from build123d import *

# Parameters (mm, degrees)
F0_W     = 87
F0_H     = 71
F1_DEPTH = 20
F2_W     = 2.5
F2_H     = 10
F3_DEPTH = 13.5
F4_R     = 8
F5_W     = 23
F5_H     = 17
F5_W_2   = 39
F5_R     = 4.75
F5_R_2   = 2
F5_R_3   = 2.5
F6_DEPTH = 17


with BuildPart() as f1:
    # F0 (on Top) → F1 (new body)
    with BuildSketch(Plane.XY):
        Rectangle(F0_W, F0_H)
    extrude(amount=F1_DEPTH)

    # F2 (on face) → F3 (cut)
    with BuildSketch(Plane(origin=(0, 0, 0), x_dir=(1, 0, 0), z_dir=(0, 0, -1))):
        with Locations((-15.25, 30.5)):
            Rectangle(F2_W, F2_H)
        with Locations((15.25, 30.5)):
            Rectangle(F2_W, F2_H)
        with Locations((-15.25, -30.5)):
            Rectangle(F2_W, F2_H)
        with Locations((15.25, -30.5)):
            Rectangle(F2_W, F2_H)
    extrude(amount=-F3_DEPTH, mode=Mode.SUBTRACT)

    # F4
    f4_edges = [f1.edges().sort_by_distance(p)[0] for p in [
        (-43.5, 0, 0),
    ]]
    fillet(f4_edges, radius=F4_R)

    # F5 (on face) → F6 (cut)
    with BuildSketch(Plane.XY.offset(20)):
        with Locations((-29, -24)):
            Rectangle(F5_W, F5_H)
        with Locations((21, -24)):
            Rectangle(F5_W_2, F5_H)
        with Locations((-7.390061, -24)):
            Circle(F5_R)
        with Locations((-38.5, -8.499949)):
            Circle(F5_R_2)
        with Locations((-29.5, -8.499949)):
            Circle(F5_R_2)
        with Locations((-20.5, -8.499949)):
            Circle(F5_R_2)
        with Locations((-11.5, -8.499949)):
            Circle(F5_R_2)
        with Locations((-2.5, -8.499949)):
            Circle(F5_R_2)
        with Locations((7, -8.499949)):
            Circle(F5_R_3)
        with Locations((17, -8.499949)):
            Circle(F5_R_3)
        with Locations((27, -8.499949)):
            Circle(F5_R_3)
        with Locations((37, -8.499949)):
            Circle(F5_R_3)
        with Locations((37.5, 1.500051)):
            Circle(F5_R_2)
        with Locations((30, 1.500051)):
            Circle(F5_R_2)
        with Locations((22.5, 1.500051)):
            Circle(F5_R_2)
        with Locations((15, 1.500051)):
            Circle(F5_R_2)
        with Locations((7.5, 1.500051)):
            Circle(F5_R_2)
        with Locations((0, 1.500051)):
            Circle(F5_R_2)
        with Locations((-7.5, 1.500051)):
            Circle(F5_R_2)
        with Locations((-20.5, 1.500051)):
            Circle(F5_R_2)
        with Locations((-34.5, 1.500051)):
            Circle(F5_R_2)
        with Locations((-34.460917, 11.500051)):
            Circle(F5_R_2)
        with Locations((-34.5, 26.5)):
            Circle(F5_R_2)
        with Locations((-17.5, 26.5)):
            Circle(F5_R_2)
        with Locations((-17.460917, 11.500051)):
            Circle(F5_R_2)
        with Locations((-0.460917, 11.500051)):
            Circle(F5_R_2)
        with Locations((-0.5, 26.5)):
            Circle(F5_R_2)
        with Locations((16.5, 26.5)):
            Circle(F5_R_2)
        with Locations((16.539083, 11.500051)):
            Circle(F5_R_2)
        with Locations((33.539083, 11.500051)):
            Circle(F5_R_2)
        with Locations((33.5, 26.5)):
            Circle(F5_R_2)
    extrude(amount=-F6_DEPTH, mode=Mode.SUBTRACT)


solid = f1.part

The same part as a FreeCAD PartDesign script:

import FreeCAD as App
import Part
import Sketcher

V = App.Vector
Q = App.Units.Quantity


def edges_at(feature, points):
    """Names of the edges that pass closest to the given points."""
    edges = feature.Shape.Edges
    near = lambda p: min(range(len(edges)), key=lambda i: edges[i].distToShape(Part.Vertex(*p))[0])
    return sorted({f"Edge{near(p) + 1}" for p in points})


def add_polygon(sketch, points):
    """Adds a closed chain of lines whose ends are joined by coincident constraints."""
    first, n = sketch.GeometryCount, len(points)
    for a, b in zip(points, points[1:] + points[:1]):
        sketch.addGeometry(Part.LineSegment(App.Vector(*a, 0), App.Vector(*b, 0)), False)
    for i in range(n):
        sketch.addConstraint(Sketcher.Constraint("Coincident", first + i, 2, first + (i + 1) % n, 1))

doc = App.newDocument("Part")
body = doc.addObject("PartDesign::Body", "Body")

# Sketch on XY plane
sketch1 = body.newObject("Sketcher::SketchObject", "Sketch")
sketch1.AttachmentSupport = (doc.getObject("XY_Plane"), [""])
sketch1.MapMode = "FlatFace"
add_polygon(sketch1, [(-44, 36), (-44, -36), (44, -36), (44, 36)])  # lines 0-3
sketch1.addConstraint([
    Sketcher.Constraint("Vertical", 0),
    Sketcher.Constraint("Horizontal", 1),
    Sketcher.Constraint("Vertical", 2),
    Sketcher.Constraint("Horizontal", 3),
    Sketcher.Constraint("Symmetric", 0, 2, 2, 2, -1, 1),
    Sketcher.Constraint("DistanceX", 1, 1, 1, 2, Q("87 mm")),
    Sketcher.Constraint("DistanceY", 0, 2, 0, 1, Q("71 mm")),
])
pad1 = body.newObject("PartDesign::Pad", "Pad")
pad1.Profile = sketch1
pad1.Length = 20

# Sketch on XY plane
sketch2 = body.newObject("Sketcher::SketchObject", "Sketch001")
sketch2.AttachmentSupport = (doc.getObject("XY_Plane"), [""])
sketch2.MapMode = "FlatFace"
add_polygon(sketch2, [(-16.5, -35.5), (-16.5, -25.5), (-14, -25.5), (-14, -35.5)])  # lines 0-3
add_polygon(sketch2, [(14, -35.5), (14, -25.5), (16.5, -25.5), (16.5, -35.5)])  # lines 4-7
add_polygon(sketch2, [(-16.5, 25.5), (-16.5, 35.5), (-14, 35.5), (-14, 25.5)])  # lines 8-11
add_polygon(sketch2, [(14, 25.5), (14, 35.5), (16.5, 35.5), (16.5, 25.5)])  # lines 12-15
sketch2.addConstraint([
    Sketcher.Constraint("Vertical", 0),
    Sketcher.Constraint("Horizontal", 1),
    Sketcher.Constraint("Vertical", 2),
    Sketcher.Constraint("Horizontal", 3),
    Sketcher.Constraint("Vertical", 4),
    Sketcher.Constraint("Horizontal", 5),
    Sketcher.Constraint("Vertical", 6),
    Sketcher.Constraint("Horizontal", 7),
    Sketcher.Constraint("Vertical", 8),
    Sketcher.Constraint("Horizontal", 9),
    Sketcher.Constraint("Vertical", 10),
    Sketcher.Constraint("Horizontal", 11),
    Sketcher.Constraint("Vertical", 12),
    Sketcher.Constraint("Horizontal", 13),
    Sketcher.Constraint("Vertical", 14),
    Sketcher.Constraint("Horizontal", 15),
    Sketcher.Constraint("Symmetric", 6, 2, 8, 2, -1, 1),
    Sketcher.Constraint("Symmetric", 4, 2, 10, 2, -1, 1),
    Sketcher.Constraint("Symmetric", 2, 2, 12, 2, -1, 1),
    Sketcher.Constraint("Symmetric", 0, 2, 14, 2, -1, 1),
    Sketcher.Constraint("Symmetric", 1, 2, 4, 2, -2),
    Sketcher.Constraint("Symmetric", 3, 2, 6, 2, -2),
    Sketcher.Constraint("DistanceY", 0, 1, 0, 2, Q("10 mm")),
    Sketcher.Constraint("DistanceX", 1, 1, 1, 2, Q("2.5 mm")),
    Sketcher.Constraint("DistanceX", 1, 2, -1, 1, Q("14 mm")),
    Sketcher.Constraint("DistanceY", 0, 2, 8, 2, Q("61 mm")),
])
pocket1 = body.newObject("PartDesign::Pocket", "Pocket")
pocket1.Profile = sketch2
pocket1.Length = 13.5
pocket1.Reversed = True
doc.recompute()

fillet = body.newObject("PartDesign::Fillet", "Fillet")
fillet.Base = (pocket1, edges_at(pocket1, [(-43.5, 0, 0)]))
fillet.Radius = 8

# Sketch on XY plane
sketch3 = body.newObject("Sketcher::SketchObject", "Sketch002")
sketch3.AttachmentSupport = (doc.getObject("XY_Plane"), [""])
sketch3.MapMode = "FlatFace"
sketch3.AttachmentOffset = App.Placement(V(0, 0, 20), App.Rotation())
add_polygon(sketch3, [(-40.5, -15.5), (-40.5, -32.5), (-17.5, -32.5), (-17.5, -15.5)])  # lines 0-3
add_polygon(sketch3, [(1.5, -15.5), (1.5, -32.5), (40.5, -32.5), (40.5, -15.5)])  # lines 4-7
sketch3.addGeometry(Part.Circle(V(-7.4, -24, 0), V(0, 0, 1), 4.8), False)  # 8
sketch3.addGeometry(Part.Circle(V(-38.5, -8.5, 0), V(0, 0, 1), 2), False)  # 9
sketch3.addGeometry(Part.Circle(V(-29.5, -8.5, 0), V(0, 0, 1), 2), False)  # 10
sketch3.addGeometry(Part.Circle(V(-20.5, -8.5, 0), V(0, 0, 1), 2), False)  # 11
sketch3.addGeometry(Part.Circle(V(-11.5, -8.5, 0), V(0, 0, 1), 2), False)  # 12
sketch3.addGeometry(Part.Circle(V(-2.5, -8.5, 0), V(0, 0, 1), 2), False)  # 13
sketch3.addGeometry(Part.Circle(V(7, -8.5, 0), V(0, 0, 1), 2.5), False)  # 14
sketch3.addGeometry(Part.Circle(V(17, -8.5, 0), V(0, 0, 1), 2.5), False)  # 15
sketch3.addGeometry(Part.Circle(V(27, -8.5, 0), V(0, 0, 1), 2.5), False)  # 16
sketch3.addGeometry(Part.Circle(V(37, -8.5, 0), V(0, 0, 1), 2.5), False)  # 17
sketch3.addGeometry(Part.Circle(V(37.5, 1.5, 0), V(0, 0, 1), 2), False)  # 18
sketch3.addGeometry(Part.Circle(V(30, 1.5, 0), V(0, 0, 1), 2), False)  # 19
sketch3.addGeometry(Part.Circle(V(22.5, 1.5, 0), V(0, 0, 1), 2), False)  # 20
sketch3.addGeometry(Part.Circle(V(15, 1.5, 0), V(0, 0, 1), 2), False)  # 21
sketch3.addGeometry(Part.Circle(V(7.5, 1.5, 0), V(0, 0, 1), 2), False)  # 22
sketch3.addGeometry(Part.Circle(V(0, 1.5, 0), V(0, 0, 1), 2), False)  # 23
sketch3.addGeometry(Part.Circle(V(-7.5, 1.5, 0), V(0, 0, 1), 2), False)  # 24
sketch3.addGeometry(Part.Circle(V(-20.5, 1.5, 0), V(0, 0, 1), 2), False)  # 25
sketch3.addGeometry(Part.Circle(V(-34.5, 1.5, 0), V(0, 0, 1), 2), False)  # 26
sketch3.addGeometry(Part.Circle(V(-34.5, 11.5, 0), V(0, 0, 1), 2), False)  # 27
sketch3.addGeometry(Part.Circle(V(-34.5, 26.5, 0), V(0, 0, 1), 2), False)  # 28
sketch3.addGeometry(Part.Circle(V(-17.5, 26.5, 0), V(0, 0, 1), 2), False)  # 29
sketch3.addGeometry(Part.Circle(V(-17.5, 11.5, 0), V(0, 0, 1), 2), False)  # 30
sketch3.addGeometry(Part.Circle(V(-0.5, 11.5, 0), V(0, 0, 1), 2), False)  # 31
sketch3.addGeometry(Part.Circle(V(-0.5, 26.5, 0), V(0, 0, 1), 2), False)  # 32
sketch3.addGeometry(Part.Circle(V(16.5, 26.5, 0), V(0, 0, 1), 2), False)  # 33
sketch3.addGeometry(Part.Circle(V(16.5, 11.5, 0), V(0, 0, 1), 2), False)  # 34
sketch3.addGeometry(Part.Circle(V(33.5, 11.5, 0), V(0, 0, 1), 2), False)  # 35
sketch3.addGeometry(Part.Circle(V(33.5, 26.5, 0), V(0, 0, 1), 2), False)  # 36
sketch3.addConstraint([
    Sketcher.Constraint("Vertical", 0),
    Sketcher.Constraint("Horizontal", 1),
    Sketcher.Constraint("Vertical", 2),
    Sketcher.Constraint("Horizontal", 3),
    Sketcher.Constraint("Vertical", 4),
    Sketcher.Constraint("Horizontal", 5),
    Sketcher.Constraint("Vertical", 6),
    Sketcher.Constraint("Horizontal", 7),
    Sketcher.Constraint("Equal", 9, 10),
    Sketcher.Constraint("Equal", 10, 11),
    Sketcher.Constraint("Equal", 11, 12),
    Sketcher.Constraint("Equal", 12, 13),
    Sketcher.Constraint("Equal", 14, 15),
    Sketcher.Constraint("Equal", 15, 16),
    Sketcher.Constraint("Equal", 16, 17),
    Sketcher.Constraint("Equal", 13, 18),
    Sketcher.Constraint("Equal", 18, 19),
    Sketcher.Constraint("Equal", 19, 20),
    Sketcher.Constraint("Equal", 20, 21),
    Sketcher.Constraint("Equal", 21, 22),
    Sketcher.Constraint("Equal", 22, 23),
    Sketcher.Constraint("Equal", 23, 24),
    Sketcher.Constraint("Equal", 24, 25),
    Sketcher.Constraint("Equal", 25, 26),
    Sketcher.Constraint("Equal", 26, 27),
    Sketcher.Constraint("Equal", 27, 28),
    Sketcher.Constraint("Equal", 28, 29),
    Sketcher.Constraint("Equal", 29, 30),
    Sketcher.Constraint("Equal", 30, 31),
    Sketcher.Constraint("Equal", 31, 32),
    Sketcher.Constraint("Equal", 32, 33),
    Sketcher.Constraint("Equal", 33, 34),
    Sketcher.Constraint("Equal", 34, 35),
    Sketcher.Constraint("Equal", 35, 36),
    Sketcher.Constraint("Symmetric", 22, 3, 24, 3, -2),
    Sketcher.Constraint("Symmetric", 0, 2, 5, 2, -2),
    Sketcher.Constraint("PointOnObject", 23, 3, -2),
    Sketcher.Constraint("Horizontal", 9, 3, 10, 3),
    Sketcher.Constraint("Horizontal", 10, 3, 11, 3),
    Sketcher.Constraint("Horizontal", 11, 3, 12, 3),
    Sketcher.Constraint("Horizontal", 12, 3, 13, 3),
    Sketcher.Constraint("Horizontal", 13, 3, 14, 3),
    Sketcher.Constraint("Horizontal", 14, 3, 15, 3),
    Sketcher.Constraint("Horizontal", 15, 3, 16, 3),
    Sketcher.Constraint("Horizontal", 16, 3, 17, 3),
    Sketcher.Constraint("Horizontal", 18, 3, 19, 3),
    Sketcher.Constraint("Horizontal", 19, 3, 20, 3),
    Sketcher.Constraint("Horizontal", 20, 3, 21, 3),
    Sketcher.Constraint("Horizontal", 21, 3, 22, 3),
    Sketcher.Constraint("Horizontal", 22, 3, 23, 3),
    Sketcher.Constraint("Horizontal", 24, 3, 25, 3),
    Sketcher.Constraint("Horizontal", 25, 3, 26, 3),
    Sketcher.Constraint("Horizontal", 28, 3, 29, 3),
    Sketcher.Constraint("Horizontal", 27, 3, 30, 3),
    Sketcher.Constraint("Horizontal", 30, 3, 31, 3),
    Sketcher.Constraint("Horizontal", 29, 3, 32, 3),
    Sketcher.Constraint("Horizontal", 32, 3, 33, 3),
    Sketcher.Constraint("Horizontal", 31, 3, 34, 3),
    Sketcher.Constraint("Horizontal", 34, 3, 35, 3),
    Sketcher.Constraint("Horizontal", 33, 3, 36, 3),
    Sketcher.Constraint("Horizontal", 3, 2, 6, 2),
    Sketcher.Constraint("Vertical", 11, 3, 25, 3),
    Sketcher.Constraint("Vertical", 26, 3, 28, 3),
    Sketcher.Constraint("Vertical", 29, 3, 1, 2),
    Sketcher.Constraint("Diameter", 9, Q("4 mm")),
    Sketcher.Constraint("Diameter", 14, Q("5 mm")),
    Sketcher.Constraint("Diameter", 8, Q("9.5 mm")),
    Sketcher.Constraint("DistanceX", 1, 1, 1, 2, Q("23 mm")),
    Sketcher.Constraint("DistanceX", 5, 1, 5, 2, Q("39 mm")),
    Sketcher.Constraint("DistanceY", 0, 2, 0, 1, Q("17 mm")),
    Sketcher.Constraint("DistanceY", 8, 3, -1, 1, Q("24 mm")),
    Sketcher.Constraint("DistanceX", -1, 1, 14, 3, Q("7 mm")),
    Sketcher.Constraint("DistanceX", -1, 1, 15, 3, Q("17 mm")),
    Sketcher.Constraint("DistanceX", -1, 1, 16, 3, Q("27 mm")),
    Sketcher.Constraint("DistanceX", -1, 1, 17, 3, Q("37 mm")),
    Sketcher.Constraint("DistanceX", -1, 1, 19, 3, Q("30 mm")),
    Sketcher.Constraint("DistanceX", -1, 1, 21, 3, Q("15 mm")),
    Sketcher.Constraint("DistanceX", 9, 3, 10, 3, Q("9 mm")),
    Sketcher.Constraint("DistanceX", 10, 3, 11, 3, Q("9 mm")),
    Sketcher.Constraint("DistanceX", 11, 3, 12, 3, Q("9 mm")),
    Sketcher.Constraint("DistanceX", 12, 3, 13, 3, Q("9 mm")),
    Sketcher.Constraint("DistanceY", 17, 3, 18, 3, Q("10 mm")),
    Sketcher.Constraint("DistanceX", 13, 3, 18, 3, Q("40 mm")),
    Sketcher.Constraint("DistanceX", 20, 3, 18, 3, Q("15 mm")),
    Sketcher.Constraint("DistanceX", 13, 3, 22, 3, Q("10 mm")),
    Sketcher.Constraint("DistanceX", 12, 3, 24, 3, Q("4 mm")),
    Sketcher.Constraint("DistanceX", 9, 3, 26, 3, Q("4 mm")),
    Sketcher.Constraint("DistanceY", 26, 3, 27, 3, Q("10 mm")),
    Sketcher.Constraint("DistanceX", 28, 3, 29, 3, Q("17 mm")),
    Sketcher.Constraint("DistanceX", 27, 3, 30, 3, Q("17 mm")),
    Sketcher.Constraint("DistanceX", 30, 3, 31, 3, Q("17 mm")),
    Sketcher.Constraint("DistanceX", 29, 3, 32, 3, Q("17 mm")),
    Sketcher.Constraint("DistanceX", 32, 3, 33, 3, Q("17 mm")),
    Sketcher.Constraint("DistanceX", 34, 3, 35, 3, Q("17 mm")),
    Sketcher.Constraint("DistanceX", 33, 3, 36, 3, Q("17 mm")),
    Sketcher.Constraint("DistanceY", -1, 1, 28, 3, Q("26.5 mm")),
    Sketcher.Constraint("DistanceY", 0, 2, -1, 1, Q("32.5 mm")),
    Sketcher.Constraint("DistanceX", 8, 3, -1, 1, Q("7.390061 mm")),
    Sketcher.Constraint("DistanceY", 9, 3, -1, 1, Q("8.499949 mm")),
    Sketcher.Constraint("DistanceX", 27, 3, -1, 1, Q("34.460917 mm")),
    Sketcher.Constraint("DistanceX", -1, 1, 34, 3, Q("16.539083 mm")),
])
pocket2 = body.newObject("PartDesign::Pocket", "Pocket001")
pocket2.Profile = sketch3
pocket2.Length = 17

doc.recompute()
